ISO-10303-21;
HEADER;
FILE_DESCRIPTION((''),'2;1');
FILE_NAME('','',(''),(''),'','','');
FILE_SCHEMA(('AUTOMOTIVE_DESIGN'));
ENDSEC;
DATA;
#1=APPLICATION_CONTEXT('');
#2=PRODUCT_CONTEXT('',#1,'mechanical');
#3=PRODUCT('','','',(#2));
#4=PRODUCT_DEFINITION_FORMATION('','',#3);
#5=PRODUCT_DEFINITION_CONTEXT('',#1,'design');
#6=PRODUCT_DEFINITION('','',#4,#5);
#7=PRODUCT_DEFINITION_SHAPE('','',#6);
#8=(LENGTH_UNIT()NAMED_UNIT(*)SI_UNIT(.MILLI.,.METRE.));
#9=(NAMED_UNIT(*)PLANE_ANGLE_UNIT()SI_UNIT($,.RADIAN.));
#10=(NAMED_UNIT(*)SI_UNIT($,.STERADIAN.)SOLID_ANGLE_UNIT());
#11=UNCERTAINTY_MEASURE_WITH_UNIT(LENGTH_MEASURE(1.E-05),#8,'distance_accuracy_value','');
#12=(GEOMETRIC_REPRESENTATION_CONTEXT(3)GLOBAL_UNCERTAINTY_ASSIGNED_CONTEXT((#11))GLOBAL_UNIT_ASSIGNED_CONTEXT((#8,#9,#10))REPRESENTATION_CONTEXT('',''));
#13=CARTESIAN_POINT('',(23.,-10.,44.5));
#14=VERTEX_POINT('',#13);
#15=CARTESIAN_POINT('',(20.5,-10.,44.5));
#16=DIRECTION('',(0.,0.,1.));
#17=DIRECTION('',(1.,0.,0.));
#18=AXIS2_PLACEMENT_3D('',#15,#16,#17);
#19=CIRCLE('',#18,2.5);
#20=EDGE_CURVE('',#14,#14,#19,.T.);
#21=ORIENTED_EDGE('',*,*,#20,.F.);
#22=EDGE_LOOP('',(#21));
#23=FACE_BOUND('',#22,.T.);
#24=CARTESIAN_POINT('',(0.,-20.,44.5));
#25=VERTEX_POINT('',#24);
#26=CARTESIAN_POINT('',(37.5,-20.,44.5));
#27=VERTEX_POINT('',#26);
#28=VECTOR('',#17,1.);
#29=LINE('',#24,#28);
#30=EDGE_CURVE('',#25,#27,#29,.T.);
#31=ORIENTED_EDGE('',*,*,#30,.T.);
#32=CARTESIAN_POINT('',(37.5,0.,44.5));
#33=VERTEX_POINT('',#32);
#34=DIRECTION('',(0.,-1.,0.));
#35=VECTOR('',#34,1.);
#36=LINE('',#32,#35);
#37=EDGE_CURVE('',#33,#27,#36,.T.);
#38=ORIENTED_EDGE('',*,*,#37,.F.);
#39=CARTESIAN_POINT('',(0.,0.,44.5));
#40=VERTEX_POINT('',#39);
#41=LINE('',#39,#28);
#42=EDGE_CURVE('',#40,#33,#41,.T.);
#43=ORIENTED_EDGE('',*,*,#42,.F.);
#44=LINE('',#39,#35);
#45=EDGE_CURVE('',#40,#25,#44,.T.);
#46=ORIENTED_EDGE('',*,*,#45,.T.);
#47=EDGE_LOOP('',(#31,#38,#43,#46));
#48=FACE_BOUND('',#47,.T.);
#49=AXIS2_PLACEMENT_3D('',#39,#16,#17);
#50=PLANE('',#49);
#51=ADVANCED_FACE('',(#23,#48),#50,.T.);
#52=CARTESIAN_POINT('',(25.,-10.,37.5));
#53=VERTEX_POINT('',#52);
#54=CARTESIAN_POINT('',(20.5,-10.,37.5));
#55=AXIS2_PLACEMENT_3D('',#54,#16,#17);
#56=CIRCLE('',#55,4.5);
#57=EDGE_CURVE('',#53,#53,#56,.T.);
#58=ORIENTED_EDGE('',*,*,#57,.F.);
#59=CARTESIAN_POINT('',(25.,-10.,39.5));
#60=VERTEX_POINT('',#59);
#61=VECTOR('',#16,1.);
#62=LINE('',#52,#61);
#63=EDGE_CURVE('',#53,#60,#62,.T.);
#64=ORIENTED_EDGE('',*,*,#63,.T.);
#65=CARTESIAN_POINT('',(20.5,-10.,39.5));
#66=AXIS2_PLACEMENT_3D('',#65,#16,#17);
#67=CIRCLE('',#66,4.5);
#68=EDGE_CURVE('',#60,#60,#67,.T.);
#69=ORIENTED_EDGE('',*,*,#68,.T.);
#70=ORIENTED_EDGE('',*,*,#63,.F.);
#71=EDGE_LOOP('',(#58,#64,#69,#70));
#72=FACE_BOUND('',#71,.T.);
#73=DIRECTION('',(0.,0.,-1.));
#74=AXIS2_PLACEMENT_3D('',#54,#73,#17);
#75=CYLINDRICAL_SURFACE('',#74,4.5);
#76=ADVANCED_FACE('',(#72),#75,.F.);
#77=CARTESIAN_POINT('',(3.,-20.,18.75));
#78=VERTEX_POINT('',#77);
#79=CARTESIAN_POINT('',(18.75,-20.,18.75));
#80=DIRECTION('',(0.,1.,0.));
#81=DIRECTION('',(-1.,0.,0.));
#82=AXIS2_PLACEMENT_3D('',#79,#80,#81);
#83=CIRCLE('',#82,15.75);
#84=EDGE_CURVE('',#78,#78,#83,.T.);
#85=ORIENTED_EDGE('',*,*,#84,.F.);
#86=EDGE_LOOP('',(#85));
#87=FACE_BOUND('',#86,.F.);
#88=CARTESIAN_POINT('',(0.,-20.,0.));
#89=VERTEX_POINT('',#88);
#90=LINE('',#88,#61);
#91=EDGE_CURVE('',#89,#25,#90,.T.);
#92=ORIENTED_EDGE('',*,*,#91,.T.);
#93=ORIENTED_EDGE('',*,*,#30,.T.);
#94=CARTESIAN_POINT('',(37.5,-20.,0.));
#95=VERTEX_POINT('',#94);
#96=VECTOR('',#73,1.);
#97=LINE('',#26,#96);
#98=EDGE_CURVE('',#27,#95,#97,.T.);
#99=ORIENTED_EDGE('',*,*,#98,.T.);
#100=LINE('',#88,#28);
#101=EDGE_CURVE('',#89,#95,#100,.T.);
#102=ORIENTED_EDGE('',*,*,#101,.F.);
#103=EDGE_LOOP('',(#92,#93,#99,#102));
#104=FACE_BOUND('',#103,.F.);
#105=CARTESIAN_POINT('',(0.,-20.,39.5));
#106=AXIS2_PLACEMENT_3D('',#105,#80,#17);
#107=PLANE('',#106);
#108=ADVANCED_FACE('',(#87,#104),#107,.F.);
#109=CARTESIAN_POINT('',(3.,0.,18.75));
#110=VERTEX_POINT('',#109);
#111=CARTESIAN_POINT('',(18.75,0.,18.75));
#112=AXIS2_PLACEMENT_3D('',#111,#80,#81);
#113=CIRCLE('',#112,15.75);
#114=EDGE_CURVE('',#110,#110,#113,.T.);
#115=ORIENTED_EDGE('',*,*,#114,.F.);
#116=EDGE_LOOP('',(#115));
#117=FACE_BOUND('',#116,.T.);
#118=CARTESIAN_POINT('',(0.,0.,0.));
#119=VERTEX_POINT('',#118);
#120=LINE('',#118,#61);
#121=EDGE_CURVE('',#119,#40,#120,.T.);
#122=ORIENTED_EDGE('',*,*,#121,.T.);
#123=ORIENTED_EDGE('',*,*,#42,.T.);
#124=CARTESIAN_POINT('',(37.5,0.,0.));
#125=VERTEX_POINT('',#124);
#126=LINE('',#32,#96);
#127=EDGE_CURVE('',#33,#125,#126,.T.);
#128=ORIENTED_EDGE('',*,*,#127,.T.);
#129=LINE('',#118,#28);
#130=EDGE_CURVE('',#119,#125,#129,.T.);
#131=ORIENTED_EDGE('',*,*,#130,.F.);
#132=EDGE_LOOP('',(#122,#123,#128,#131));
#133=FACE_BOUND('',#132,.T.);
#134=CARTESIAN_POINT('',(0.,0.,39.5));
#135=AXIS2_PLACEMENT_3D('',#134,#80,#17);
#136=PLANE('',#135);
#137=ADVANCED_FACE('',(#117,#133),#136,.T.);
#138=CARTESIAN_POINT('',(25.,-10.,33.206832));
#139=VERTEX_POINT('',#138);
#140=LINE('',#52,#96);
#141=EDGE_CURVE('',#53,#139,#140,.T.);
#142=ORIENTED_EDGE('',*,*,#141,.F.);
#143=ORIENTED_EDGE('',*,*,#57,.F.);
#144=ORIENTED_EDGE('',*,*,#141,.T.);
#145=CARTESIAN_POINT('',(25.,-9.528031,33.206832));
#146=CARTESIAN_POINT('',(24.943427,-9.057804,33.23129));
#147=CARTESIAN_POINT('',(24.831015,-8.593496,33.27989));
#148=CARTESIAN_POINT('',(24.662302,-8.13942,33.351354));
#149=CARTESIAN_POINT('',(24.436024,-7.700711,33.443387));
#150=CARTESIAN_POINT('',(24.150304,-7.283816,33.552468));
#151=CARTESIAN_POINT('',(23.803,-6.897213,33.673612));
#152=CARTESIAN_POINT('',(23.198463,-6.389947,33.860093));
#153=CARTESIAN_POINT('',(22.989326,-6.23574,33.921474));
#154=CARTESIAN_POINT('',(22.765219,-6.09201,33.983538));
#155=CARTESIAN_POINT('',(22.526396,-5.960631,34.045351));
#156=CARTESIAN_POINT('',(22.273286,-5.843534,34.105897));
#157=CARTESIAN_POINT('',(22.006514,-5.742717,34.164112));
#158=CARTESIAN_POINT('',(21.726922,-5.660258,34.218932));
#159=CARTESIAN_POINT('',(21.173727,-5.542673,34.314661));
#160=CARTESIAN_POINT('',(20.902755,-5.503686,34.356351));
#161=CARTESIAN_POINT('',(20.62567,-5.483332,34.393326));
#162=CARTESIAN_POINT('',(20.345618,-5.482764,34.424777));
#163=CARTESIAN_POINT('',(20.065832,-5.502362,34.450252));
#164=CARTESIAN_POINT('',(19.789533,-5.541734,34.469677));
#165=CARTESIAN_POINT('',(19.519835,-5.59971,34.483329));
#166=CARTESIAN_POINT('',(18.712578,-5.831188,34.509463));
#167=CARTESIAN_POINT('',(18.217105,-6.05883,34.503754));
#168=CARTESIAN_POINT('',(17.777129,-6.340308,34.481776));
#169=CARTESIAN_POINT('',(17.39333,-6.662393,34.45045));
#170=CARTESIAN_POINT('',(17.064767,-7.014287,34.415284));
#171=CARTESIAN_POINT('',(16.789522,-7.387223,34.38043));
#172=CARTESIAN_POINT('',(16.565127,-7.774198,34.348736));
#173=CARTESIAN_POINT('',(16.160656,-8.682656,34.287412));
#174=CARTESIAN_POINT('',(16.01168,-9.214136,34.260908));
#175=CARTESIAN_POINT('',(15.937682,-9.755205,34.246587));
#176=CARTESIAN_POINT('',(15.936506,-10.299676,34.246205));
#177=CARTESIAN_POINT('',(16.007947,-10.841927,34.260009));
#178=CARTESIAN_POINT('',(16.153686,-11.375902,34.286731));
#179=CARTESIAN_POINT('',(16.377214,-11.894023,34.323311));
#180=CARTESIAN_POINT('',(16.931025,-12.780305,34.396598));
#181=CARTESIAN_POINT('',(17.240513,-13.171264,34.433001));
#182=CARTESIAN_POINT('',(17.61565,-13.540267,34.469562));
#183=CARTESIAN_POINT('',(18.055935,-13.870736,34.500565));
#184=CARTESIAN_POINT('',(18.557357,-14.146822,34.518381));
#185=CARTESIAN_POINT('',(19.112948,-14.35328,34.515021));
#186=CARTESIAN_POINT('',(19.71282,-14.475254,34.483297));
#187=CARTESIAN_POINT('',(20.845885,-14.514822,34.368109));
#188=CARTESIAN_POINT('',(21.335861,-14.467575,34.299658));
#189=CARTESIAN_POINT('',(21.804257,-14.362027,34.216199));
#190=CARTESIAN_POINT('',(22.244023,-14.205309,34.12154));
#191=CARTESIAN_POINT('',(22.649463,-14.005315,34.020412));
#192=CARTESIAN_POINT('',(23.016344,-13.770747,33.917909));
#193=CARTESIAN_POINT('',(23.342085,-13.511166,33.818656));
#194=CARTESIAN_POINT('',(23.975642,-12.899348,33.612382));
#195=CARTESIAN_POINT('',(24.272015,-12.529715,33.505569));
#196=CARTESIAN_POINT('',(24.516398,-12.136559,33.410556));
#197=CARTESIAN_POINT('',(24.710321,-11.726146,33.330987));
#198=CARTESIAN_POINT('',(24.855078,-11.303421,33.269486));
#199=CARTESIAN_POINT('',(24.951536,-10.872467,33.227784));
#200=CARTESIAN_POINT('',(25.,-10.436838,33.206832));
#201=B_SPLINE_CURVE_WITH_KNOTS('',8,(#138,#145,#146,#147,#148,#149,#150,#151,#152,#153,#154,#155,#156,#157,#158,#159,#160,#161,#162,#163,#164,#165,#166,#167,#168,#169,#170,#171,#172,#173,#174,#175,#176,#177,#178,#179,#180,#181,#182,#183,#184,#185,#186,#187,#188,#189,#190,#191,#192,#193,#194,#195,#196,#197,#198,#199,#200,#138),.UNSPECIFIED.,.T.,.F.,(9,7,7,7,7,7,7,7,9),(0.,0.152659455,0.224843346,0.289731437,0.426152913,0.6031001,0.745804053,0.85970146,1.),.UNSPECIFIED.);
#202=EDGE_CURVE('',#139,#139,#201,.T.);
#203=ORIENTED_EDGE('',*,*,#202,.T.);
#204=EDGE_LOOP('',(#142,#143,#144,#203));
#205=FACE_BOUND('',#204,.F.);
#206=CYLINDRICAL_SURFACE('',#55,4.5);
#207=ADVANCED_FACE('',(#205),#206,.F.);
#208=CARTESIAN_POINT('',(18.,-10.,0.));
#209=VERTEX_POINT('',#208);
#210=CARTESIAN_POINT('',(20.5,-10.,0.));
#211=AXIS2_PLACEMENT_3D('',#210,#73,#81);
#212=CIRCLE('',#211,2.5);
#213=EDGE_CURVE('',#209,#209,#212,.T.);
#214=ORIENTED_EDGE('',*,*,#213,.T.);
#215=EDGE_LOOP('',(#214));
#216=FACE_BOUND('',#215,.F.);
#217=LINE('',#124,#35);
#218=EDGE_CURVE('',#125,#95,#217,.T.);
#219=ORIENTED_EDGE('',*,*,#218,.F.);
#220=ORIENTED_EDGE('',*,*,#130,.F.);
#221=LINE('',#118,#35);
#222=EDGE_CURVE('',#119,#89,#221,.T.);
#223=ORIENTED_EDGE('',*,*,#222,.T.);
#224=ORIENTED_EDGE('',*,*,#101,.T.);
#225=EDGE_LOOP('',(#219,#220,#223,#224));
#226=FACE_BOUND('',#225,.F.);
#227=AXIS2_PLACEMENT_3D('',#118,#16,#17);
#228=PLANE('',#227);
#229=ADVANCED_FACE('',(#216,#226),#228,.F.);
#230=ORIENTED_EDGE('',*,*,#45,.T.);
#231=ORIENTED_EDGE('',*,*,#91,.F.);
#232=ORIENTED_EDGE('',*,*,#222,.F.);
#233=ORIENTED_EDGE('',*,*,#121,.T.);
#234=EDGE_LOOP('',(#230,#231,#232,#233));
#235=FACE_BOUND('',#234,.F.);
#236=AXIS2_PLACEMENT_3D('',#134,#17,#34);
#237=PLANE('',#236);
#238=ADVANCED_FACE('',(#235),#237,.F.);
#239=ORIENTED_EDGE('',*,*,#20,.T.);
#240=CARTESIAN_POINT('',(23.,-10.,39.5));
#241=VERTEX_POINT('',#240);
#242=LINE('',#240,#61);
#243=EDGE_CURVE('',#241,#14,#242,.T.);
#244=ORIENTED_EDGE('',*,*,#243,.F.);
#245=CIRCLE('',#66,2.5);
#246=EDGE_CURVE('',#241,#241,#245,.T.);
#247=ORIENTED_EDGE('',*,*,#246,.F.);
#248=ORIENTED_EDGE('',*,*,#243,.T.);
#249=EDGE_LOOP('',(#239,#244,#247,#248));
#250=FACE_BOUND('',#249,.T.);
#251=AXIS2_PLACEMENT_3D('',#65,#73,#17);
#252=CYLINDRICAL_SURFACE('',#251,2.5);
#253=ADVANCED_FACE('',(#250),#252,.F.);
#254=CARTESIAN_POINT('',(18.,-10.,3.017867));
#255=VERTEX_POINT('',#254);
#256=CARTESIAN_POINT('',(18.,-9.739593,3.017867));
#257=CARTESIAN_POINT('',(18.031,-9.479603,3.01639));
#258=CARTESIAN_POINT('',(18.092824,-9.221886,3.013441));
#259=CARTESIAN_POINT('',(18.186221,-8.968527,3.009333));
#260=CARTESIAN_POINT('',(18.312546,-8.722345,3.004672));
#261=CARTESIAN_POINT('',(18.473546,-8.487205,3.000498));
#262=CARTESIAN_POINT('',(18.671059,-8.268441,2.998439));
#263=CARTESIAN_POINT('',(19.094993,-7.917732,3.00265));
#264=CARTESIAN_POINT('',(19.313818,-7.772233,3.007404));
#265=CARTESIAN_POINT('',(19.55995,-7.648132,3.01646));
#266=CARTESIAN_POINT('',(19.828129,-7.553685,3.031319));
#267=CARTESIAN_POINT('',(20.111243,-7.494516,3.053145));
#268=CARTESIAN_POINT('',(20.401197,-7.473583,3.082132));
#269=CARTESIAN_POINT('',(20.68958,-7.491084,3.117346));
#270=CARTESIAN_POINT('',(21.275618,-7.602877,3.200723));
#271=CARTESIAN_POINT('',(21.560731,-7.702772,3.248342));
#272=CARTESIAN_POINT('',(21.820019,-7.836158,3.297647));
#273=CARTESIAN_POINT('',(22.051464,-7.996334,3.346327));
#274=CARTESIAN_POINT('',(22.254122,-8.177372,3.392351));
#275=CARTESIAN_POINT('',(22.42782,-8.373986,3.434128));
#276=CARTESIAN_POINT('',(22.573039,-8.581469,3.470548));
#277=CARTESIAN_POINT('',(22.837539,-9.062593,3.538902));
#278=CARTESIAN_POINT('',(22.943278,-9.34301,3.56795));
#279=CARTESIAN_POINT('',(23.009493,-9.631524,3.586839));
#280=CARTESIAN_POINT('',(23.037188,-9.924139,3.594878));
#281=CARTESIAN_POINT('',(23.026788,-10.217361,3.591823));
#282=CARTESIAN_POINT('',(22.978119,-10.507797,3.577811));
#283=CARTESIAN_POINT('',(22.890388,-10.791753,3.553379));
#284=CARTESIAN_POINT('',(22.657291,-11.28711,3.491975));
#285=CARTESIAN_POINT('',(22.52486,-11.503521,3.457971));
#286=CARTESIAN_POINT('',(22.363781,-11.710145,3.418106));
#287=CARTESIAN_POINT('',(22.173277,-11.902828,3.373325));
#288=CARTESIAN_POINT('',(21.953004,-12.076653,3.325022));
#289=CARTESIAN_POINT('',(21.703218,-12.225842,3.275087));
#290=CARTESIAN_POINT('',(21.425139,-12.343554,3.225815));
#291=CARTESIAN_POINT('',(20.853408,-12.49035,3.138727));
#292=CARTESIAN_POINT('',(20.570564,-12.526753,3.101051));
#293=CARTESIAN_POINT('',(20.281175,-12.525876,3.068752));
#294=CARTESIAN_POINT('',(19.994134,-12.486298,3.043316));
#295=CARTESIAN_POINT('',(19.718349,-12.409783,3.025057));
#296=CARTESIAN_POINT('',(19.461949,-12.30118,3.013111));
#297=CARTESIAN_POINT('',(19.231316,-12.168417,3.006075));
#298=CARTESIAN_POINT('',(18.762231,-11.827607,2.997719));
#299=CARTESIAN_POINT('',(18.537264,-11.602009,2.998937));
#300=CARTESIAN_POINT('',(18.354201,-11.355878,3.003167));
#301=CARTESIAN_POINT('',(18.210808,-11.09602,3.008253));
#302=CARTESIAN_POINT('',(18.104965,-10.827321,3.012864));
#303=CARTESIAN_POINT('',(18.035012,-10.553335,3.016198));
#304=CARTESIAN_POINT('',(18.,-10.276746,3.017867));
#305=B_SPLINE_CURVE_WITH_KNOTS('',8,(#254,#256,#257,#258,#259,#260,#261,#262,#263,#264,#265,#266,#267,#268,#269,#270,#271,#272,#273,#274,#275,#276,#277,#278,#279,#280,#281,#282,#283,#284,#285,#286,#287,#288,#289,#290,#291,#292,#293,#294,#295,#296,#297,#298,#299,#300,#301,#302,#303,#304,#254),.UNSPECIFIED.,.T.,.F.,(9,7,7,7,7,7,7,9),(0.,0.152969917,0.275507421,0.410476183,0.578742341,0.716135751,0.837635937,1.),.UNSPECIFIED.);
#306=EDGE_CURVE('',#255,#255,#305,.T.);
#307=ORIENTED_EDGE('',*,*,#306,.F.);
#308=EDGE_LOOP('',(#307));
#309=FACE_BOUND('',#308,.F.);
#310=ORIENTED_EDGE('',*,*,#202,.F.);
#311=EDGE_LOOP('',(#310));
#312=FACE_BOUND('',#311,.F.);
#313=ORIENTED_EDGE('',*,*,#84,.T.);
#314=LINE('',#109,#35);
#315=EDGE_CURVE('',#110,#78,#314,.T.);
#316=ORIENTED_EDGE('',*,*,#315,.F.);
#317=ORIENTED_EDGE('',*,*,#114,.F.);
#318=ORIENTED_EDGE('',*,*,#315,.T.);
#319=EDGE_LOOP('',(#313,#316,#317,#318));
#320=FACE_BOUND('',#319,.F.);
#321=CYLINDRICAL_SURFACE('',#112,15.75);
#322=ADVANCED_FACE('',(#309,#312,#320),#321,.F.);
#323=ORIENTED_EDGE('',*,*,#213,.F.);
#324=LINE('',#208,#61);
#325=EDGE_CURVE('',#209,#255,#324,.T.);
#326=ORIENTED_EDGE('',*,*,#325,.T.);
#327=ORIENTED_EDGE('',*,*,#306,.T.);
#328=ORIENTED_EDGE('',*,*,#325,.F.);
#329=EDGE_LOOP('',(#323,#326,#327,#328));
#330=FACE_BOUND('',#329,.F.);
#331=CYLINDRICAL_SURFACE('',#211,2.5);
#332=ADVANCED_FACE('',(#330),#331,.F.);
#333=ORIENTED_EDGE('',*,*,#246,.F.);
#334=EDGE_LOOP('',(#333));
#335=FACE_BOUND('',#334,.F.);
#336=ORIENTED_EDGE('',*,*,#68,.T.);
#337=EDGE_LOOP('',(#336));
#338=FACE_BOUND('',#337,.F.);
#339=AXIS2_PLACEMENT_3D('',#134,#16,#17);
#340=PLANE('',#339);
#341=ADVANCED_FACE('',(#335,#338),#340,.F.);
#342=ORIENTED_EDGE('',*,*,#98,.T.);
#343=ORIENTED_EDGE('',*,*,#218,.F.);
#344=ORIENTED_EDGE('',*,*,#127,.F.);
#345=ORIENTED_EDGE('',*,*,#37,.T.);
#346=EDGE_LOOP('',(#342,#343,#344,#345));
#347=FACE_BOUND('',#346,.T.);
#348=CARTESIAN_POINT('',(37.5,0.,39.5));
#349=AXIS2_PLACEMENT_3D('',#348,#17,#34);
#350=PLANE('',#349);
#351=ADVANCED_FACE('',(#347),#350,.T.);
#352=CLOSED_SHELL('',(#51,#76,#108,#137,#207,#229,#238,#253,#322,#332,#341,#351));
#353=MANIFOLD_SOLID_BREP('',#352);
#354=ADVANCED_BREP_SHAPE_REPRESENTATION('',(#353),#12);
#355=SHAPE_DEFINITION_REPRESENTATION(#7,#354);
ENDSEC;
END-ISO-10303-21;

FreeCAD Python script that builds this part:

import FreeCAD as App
import Part
import Sketcher

V = App.Vector
Q = App.Units.Quantity


def add_polygon(sketch, points):
    """Adds a closed chain of lines whose ends are joined by coincident constraints."""
    first, n = sketch.GeometryCount, len(points)
    for a, b in zip(points, points[1:] + points[:1]):
        sketch.addGeometry(Part.LineSegment(App.Vector(*a, 0), App.Vector(*b, 0)), False)
    for i in range(n):
        sketch.addConstraint(Sketcher.Constraint("Coincident", first + i, 2, first + (i + 1) % n, 1))

doc = App.newDocument("Part")
body = doc.addObject("PartDesign::Body", "Body")

# Sketch on XZ plane
sketch1 = body.newObject("Sketcher::SketchObject", "Sketch")
sketch1.AttachmentSupport = (doc.getObject("XZ_Plane"), [""])
sketch1.MapMode = "FlatFace"
add_polygon(sketch1, [(38, 0), (0, 0), (0, 38), (38, 38)])  # lines 0-3
sketch1.addGeometry(Part.Circle(V(19, 19, 0), V(0, 0, 1), 16), False)  # 4
sketch1.addConstraint([
    Sketcher.Constraint("Horizontal", 0),
    Sketcher.Constraint("Vertical", 1),
    Sketcher.Constraint("Horizontal", 2),
    Sketcher.Constraint("Vertical", 3),
    Sketcher.Constraint("Coincident", 0, 2, -1, 1),
    Sketcher.Constraint("Equal", 2, 1),
    Sketcher.Constraint("Diameter", 4, Q("31.5 mm")),
    Sketcher.Constraint("DistanceX", 0, 2, 0, 1, Q("37.5 mm")),
    Sketcher.Constraint("DistanceX", -1, 1, 4, 3, Q("18.75 mm")),
    Sketcher.Constraint("DistanceY", -1, 1, 4, 3, Q("18.75 mm")),
])
pad1 = body.newObject("PartDesign::Pad", "Pad")
pad1.Profile = sketch1
pad1.Length = 20

# Sketch on XY plane
sketch2 = body.newObject("Sketcher::SketchObject", "Sketch001")
sketch2.AttachmentSupport = (doc.getObject("XY_Plane"), [""])
sketch2.MapMode = "FlatFace"
sketch2.AttachmentOffset = App.Placement(V(0, 0, 37.5), App.Rotation())
sketch2.addGeometry(Part.Circle(V(20.5, -10, 0), V(0, 0, 1), 4.5), False)
sketch2.addConstraint([
    Sketcher.Constraint("Diameter", 0, Q("9 mm")),
    Sketcher.Constraint("DistanceY", 0, 3, -1, 1, Q("10 mm")),
    Sketcher.Constraint("DistanceX", -1, 1, 0, 3, Q("20.5 mm")),
])
pocket1 = body.newObject("PartDesign::Pocket", "Pocket")
pocket1.Profile = sketch2
pocket1.Length = 5

# Sketch on XY plane
sketch3 = body.newObject("Sketcher::SketchObject", "Sketch002")
sketch3.AttachmentSupport = (doc.getObject("XY_Plane"), [""])
sketch3.MapMode = "FlatFace"
sketch3.addGeometry(Part.Circle(V(20.5, -10, 0), V(0, 0, 1), 2.5), False)
sketch3.addConstraint([
    Sketcher.Constraint("Diameter", 0, Q("5 mm")),
    Sketcher.Constraint("DistanceY", 0, 3, -1, 1, Q("10 mm")),
    Sketcher.Constraint("DistanceX", -1, 1, 0, 3, Q("20.5 mm")),
])
pocket2 = body.newObject("PartDesign::Pocket", "Pocket001")
pocket2.Profile = sketch3
pocket2.Length = 5
pocket2.Reversed = True

# Sketch on XY plane
sketch4 = body.newObject("Sketcher::SketchObject", "Sketch003")
sketch4.AttachmentSupport = (doc.getObject("XY_Plane"), [""])
sketch4.MapMode = "FlatFace"
sketch4.AttachmentOffset = App.Placement(V(0, 0, 37.5), App.Rotation())
add_polygon(sketch4, [(37.5, -20), (37.5, 0), (0, 0), (0, -20)])  # lines 0-3
sketch4.addGeometry(Part.Circle(V(20.5, -10, 0), V(0, 0, 1), 4.5), False)  # 4
sketch4.addConstraint([
    Sketcher.Constraint("Vertical", 0),
    Sketcher.Constraint("Horizontal", 1),
    Sketcher.Constraint("Vertical", 2),
    Sketcher.Constraint("Horizontal", 3),
    Sketcher.Constraint("Coincident", 1, 2, -1, 1),
    Sketcher.Constraint("Diameter", 4, Q("9 mm")),
    Sketcher.Constraint("DistanceY", 0, 1, 0, 2, Q("20 mm")),
    Sketcher.Constraint("DistanceX", 1, 2, 1, 1, Q("37.5 mm")),
    Sketcher.Constraint("DistanceY", 4, 3, -1, 1, Q("10 mm")),
    Sketcher.Constraint("DistanceX", 4, 3, 0, 2, Q("17 mm")),
])
pad2 = body.newObject("PartDesign::Pad", "Pad001")
pad2.Profile = sketch4
pad2.Length = 2

# Sketch on XY plane
sketch5 = body.newObject("Sketcher::SketchObject", "Sketch004")
sketch5.AttachmentSupport = (doc.getObject("XY_Plane"), [""])
sketch5.MapMode = "FlatFace"
sketch5.AttachmentOffset = App.Placement(V(0, 0, 39.5), App.Rotation())
add_polygon(sketch5, [(37.5, 0), (0, 0), (0, -20), (37.5, -20)])  # lines 0-3
sketch5.addGeometry(Part.Circle(V(20.5, -10, 0), V(0, 0, 1), 2.5), False)  # 4
sketch5.addConstraint([
    Sketcher.Constraint("Horizontal", 0),
    Sketcher.Constraint("Vertical", 1),
    Sketcher.Constraint("Horizontal", 2),
    Sketcher.Constraint("Vertical", 3),
    Sketcher.Constraint("Coincident", 0, 2, -1, 1),
    Sketcher.Constraint("Diameter", 4, Q("5 mm")),
    Sketcher.Constraint("DistanceY", 1, 2, 1, 1, Q("20 mm")),
    Sketcher.Constraint("DistanceX", 0, 2, 0, 1, Q("37.5 mm")),
    Sketcher.Constraint("DistanceY", 4, 3, -1, 1, Q("10 mm")),
    Sketcher.Constraint("DistanceX", 4, 3, 2, 2, Q("17 mm")),
])
pad3 = body.newObject("PartDesign::Pad", "Pad002")
pad3.Profile = sketch5
pad3.Length = 5

doc.recompute()
